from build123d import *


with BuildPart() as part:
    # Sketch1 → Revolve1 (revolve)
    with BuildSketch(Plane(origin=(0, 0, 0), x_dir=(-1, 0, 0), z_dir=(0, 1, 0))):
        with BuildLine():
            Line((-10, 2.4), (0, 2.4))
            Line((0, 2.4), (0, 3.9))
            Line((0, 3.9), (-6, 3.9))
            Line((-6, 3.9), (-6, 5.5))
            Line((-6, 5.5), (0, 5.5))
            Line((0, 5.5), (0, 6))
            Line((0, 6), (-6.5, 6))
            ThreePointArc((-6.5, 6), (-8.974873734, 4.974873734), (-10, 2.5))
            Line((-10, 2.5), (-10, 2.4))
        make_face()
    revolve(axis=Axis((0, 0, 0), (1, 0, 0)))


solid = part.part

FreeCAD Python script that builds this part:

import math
import FreeCAD as App
import Part
import Sketcher

V = App.Vector
Q = App.Units.Quantity

doc = App.newDocument("Part")
body = doc.addObject("PartDesign::Body", "Body")

# Sketch on XZ plane
sketch1 = body.newObject("Sketcher::SketchObject", "Sketch")
sketch1.AttachmentSupport = (doc.getObject("XZ_Plane"), [""])
sketch1.MapMode = "FlatFace"
sketch1.addGeometry([
    Part.LineSegment(V(10, 2.4, 0), V(0, 2.4, 0)),  # 0
    Part.LineSegment(V(0, 2.4, 0), V(0, 3.9, 0)),  # 1
    Part.LineSegment(V(0, 3.9, 0), V(6, 3.9, 0)),  # 2
    Part.LineSegment(V(6, 3.9, 0), V(6, 5.5, 0)),  # 3
    Part.LineSegment(V(6, 5.5, 0), V(0, 5.5, 0)),  # 4
    Part.LineSegment(V(0, 5.5, 0), V(0, 6, 0)),  # 5
    Part.LineSegment(V(0, 6, 0), V(6.5, 6, 0)),  # 6
    Part.ArcOfCircle(Part.Circle(V(6.5, 2.5, 0), V(0, 0, 1), 3.5), math.radians(0), math.radians(90)),  # 7
    Part.LineSegment(V(10, 2.5, 0), V(10, 2.4, 0)),  # 8
], False)
sketch1.addConstraint([
    Sketcher.Constraint("Coincident", 0, 2, 1, 1),
    Sketcher.Constraint("Coincident", 1, 2, 2, 1),
    Sketcher.Constraint("Coincident", 2, 2, 3, 1),
    Sketcher.Constraint("Coincident", 3, 2, 4, 1),
    Sketcher.Constraint("Coincident", 4, 2, 5, 1),
    Sketcher.Constraint("Coincident", 5, 2, 6, 1),
    Sketcher.Constraint("Tangent", 6, 2, 7, 2),
    Sketcher.Constraint("Tangent", 7, 1, 8, 1),
    Sketcher.Constraint("Coincident", 8, 2, 0, 1),
    Sketcher.Constraint("Horizontal", 0),
    Sketcher.Constraint("Vertical", 1),
    Sketcher.Constraint("Horizontal", 2),
    Sketcher.Constraint("Vertical", 3),
    Sketcher.Constraint("Horizontal", 4),
    Sketcher.Constraint("Vertical", 5),
    Sketcher.Constraint("Horizontal", 6),
    Sketcher.Constraint("Vertical", 8),
    Sketcher.Constraint("PointOnObject", 0, 2, -2),
    Sketcher.Constraint("PointOnObject", 4, 2, -2),
    Sketcher.Constraint("Radius", 7, Q("3.5 mm")),
    Sketcher.Constraint("DistanceX", 0, 2, 0, 1, Q("10 mm")),
    Sketcher.Constraint("DistanceX", 2, 1, 2, 2, Q("6 mm")),
    Sketcher.Constraint("DistanceY", 1, 1, 1, 2, Q("1.5 mm")),
    Sketcher.Constraint("DistanceY", 3, 1, 3, 2, Q("1.6 mm")),
    Sketcher.Constraint("DistanceY", 5, 1, 5, 2, Q("0.5 mm")),
    Sketcher.Constraint("DistanceY", -1, 1, 5, 2, Q("6 mm")),
])
revolution = body.newObject("PartDesign::Revolution", "Revolution")
revolution.Profile = sketch1
revolution.ReferenceAxis = (sketch1, ["H_Axis"])
revolution.Angle = 360

doc.recompute()
